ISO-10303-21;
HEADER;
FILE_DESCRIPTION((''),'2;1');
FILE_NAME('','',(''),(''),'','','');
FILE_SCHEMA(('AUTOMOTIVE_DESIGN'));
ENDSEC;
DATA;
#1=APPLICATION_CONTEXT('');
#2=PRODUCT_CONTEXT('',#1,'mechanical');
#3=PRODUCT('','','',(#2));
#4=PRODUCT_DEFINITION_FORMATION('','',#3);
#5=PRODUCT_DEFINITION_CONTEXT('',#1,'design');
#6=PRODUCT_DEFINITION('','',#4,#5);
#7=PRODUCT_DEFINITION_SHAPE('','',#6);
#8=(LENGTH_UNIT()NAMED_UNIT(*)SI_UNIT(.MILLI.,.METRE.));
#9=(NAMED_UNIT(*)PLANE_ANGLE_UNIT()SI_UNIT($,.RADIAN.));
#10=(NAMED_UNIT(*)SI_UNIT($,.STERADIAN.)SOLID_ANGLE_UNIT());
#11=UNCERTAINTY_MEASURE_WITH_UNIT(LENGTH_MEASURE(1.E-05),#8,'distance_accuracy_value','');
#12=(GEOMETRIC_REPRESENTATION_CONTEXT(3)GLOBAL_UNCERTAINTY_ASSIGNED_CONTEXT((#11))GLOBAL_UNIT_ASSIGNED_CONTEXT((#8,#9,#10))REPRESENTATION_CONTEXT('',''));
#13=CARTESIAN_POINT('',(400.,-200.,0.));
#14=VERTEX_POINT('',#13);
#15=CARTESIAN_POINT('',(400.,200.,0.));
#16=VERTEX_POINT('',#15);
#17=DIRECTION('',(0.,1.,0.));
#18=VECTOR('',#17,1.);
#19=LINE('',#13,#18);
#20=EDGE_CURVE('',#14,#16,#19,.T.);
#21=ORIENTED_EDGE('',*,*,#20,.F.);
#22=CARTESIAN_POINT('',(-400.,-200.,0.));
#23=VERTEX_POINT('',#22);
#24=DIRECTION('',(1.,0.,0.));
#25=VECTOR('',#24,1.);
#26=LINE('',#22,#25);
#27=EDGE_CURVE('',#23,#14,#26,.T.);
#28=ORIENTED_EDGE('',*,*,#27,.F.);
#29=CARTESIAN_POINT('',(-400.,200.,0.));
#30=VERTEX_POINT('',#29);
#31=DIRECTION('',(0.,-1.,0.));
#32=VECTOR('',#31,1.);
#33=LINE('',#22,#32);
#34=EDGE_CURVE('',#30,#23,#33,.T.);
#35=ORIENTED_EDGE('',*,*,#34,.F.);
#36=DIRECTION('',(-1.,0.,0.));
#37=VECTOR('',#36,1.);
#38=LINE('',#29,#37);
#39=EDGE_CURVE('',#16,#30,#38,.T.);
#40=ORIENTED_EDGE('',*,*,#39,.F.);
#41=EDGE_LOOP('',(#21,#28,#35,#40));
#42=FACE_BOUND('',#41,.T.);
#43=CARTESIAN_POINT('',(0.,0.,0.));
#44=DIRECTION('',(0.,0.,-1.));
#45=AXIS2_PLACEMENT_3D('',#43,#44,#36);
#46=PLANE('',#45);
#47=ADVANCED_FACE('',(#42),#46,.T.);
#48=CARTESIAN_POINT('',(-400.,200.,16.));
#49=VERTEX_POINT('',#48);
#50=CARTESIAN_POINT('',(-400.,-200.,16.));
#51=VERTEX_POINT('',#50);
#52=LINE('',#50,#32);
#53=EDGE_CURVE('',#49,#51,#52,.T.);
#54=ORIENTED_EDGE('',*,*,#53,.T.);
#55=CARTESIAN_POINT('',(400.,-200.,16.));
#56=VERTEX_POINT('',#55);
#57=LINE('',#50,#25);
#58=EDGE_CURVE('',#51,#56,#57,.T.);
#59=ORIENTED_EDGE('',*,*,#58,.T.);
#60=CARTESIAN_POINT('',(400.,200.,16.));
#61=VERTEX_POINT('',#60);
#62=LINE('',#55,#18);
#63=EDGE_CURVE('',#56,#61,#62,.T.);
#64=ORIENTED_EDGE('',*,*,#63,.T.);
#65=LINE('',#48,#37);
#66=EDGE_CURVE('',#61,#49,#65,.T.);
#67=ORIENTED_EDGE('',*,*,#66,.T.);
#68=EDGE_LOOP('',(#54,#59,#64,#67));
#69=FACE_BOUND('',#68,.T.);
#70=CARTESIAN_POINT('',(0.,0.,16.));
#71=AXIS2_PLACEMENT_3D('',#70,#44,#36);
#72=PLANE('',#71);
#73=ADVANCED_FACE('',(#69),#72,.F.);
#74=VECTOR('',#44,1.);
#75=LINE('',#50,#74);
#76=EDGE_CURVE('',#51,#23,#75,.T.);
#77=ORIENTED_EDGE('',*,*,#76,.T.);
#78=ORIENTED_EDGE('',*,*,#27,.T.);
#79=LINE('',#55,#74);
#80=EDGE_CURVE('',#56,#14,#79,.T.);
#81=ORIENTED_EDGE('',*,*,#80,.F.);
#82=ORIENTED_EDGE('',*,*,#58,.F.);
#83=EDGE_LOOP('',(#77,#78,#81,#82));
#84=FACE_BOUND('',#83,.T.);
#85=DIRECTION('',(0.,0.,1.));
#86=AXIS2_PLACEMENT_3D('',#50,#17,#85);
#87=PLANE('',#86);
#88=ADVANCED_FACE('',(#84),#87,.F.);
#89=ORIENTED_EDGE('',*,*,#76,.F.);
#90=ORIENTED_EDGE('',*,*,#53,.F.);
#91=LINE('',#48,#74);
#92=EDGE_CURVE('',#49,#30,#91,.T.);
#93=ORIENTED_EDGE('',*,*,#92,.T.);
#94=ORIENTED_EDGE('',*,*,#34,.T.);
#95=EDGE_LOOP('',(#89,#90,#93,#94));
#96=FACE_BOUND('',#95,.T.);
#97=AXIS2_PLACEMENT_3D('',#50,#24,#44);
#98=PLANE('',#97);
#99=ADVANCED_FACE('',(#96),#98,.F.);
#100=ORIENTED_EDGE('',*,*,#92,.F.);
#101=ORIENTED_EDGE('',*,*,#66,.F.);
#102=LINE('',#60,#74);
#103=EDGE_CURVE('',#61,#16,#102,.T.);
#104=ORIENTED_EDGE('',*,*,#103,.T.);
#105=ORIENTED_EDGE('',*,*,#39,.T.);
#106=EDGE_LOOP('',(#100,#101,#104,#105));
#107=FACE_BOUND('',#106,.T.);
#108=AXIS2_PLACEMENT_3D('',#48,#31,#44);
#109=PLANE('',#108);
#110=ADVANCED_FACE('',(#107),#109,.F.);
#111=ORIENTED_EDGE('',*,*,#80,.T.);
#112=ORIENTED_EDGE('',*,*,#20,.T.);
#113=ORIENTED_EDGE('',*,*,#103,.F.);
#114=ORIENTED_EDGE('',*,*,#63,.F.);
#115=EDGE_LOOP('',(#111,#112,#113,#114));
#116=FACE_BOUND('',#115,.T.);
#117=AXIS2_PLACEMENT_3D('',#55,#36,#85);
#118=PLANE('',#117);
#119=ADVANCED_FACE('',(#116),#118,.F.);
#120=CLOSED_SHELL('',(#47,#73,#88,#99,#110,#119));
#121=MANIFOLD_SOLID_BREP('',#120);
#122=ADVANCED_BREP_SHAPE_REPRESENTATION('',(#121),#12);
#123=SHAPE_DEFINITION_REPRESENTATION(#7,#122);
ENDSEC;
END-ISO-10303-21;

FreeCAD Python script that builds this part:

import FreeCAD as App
import Part
import Sketcher

V = App.Vector
Q = App.Units.Quantity

doc = App.newDocument("Part")
body = doc.addObject("PartDesign::Body", "Body")

sketch1 = body.newObject("Sketcher::SketchObject", "Sketch")
sketch1.AttachmentSupport = (doc.getObject("XY_Plane"), [""])
sketch1.MapMode = "FlatFace"
sketch1.addGeometry([
    Part.LineSegment(V(-400, 200, 0), V(-400, -200, 0)),
    Part.LineSegment(V(-400, -200, 0), V(400, -200, 0)),
    Part.LineSegment(V(400, -200, 0), V(400, 200, 0)),
    Part.LineSegment(V(400, 200, 0), V(-400, 200, 0)),
], False)
sketch1.addConstraint([
    Sketcher.Constraint("Coincident", 0, 2, 1, 1),
    Sketcher.Constraint("Coincident", 1, 2, 2, 1),
    Sketcher.Constraint("Coincident", 2, 2, 3, 1),
    Sketcher.Constraint("Coincident", 3, 2, 0, 1),
    Sketcher.Constraint("Vertical", 0),
    Sketcher.Constraint("Horizontal", 1),
    Sketcher.Constraint("Vertical", 2),
    Sketcher.Constraint("Horizontal", 3),
    Sketcher.Constraint("Symmetric", 0, 2, 2, 2, -1, 1),
    Sketcher.Constraint("DistanceX", 1, 1, 1, 2, Q("800 mm")),
    Sketcher.Constraint("DistanceY", 0, 2, 0, 1, Q("400 mm")),
])
pad1 = body.newObject("PartDesign::Pad", "Pad")
pad1.Profile = sketch1
pad1.Length = 16

doc.recompute()
